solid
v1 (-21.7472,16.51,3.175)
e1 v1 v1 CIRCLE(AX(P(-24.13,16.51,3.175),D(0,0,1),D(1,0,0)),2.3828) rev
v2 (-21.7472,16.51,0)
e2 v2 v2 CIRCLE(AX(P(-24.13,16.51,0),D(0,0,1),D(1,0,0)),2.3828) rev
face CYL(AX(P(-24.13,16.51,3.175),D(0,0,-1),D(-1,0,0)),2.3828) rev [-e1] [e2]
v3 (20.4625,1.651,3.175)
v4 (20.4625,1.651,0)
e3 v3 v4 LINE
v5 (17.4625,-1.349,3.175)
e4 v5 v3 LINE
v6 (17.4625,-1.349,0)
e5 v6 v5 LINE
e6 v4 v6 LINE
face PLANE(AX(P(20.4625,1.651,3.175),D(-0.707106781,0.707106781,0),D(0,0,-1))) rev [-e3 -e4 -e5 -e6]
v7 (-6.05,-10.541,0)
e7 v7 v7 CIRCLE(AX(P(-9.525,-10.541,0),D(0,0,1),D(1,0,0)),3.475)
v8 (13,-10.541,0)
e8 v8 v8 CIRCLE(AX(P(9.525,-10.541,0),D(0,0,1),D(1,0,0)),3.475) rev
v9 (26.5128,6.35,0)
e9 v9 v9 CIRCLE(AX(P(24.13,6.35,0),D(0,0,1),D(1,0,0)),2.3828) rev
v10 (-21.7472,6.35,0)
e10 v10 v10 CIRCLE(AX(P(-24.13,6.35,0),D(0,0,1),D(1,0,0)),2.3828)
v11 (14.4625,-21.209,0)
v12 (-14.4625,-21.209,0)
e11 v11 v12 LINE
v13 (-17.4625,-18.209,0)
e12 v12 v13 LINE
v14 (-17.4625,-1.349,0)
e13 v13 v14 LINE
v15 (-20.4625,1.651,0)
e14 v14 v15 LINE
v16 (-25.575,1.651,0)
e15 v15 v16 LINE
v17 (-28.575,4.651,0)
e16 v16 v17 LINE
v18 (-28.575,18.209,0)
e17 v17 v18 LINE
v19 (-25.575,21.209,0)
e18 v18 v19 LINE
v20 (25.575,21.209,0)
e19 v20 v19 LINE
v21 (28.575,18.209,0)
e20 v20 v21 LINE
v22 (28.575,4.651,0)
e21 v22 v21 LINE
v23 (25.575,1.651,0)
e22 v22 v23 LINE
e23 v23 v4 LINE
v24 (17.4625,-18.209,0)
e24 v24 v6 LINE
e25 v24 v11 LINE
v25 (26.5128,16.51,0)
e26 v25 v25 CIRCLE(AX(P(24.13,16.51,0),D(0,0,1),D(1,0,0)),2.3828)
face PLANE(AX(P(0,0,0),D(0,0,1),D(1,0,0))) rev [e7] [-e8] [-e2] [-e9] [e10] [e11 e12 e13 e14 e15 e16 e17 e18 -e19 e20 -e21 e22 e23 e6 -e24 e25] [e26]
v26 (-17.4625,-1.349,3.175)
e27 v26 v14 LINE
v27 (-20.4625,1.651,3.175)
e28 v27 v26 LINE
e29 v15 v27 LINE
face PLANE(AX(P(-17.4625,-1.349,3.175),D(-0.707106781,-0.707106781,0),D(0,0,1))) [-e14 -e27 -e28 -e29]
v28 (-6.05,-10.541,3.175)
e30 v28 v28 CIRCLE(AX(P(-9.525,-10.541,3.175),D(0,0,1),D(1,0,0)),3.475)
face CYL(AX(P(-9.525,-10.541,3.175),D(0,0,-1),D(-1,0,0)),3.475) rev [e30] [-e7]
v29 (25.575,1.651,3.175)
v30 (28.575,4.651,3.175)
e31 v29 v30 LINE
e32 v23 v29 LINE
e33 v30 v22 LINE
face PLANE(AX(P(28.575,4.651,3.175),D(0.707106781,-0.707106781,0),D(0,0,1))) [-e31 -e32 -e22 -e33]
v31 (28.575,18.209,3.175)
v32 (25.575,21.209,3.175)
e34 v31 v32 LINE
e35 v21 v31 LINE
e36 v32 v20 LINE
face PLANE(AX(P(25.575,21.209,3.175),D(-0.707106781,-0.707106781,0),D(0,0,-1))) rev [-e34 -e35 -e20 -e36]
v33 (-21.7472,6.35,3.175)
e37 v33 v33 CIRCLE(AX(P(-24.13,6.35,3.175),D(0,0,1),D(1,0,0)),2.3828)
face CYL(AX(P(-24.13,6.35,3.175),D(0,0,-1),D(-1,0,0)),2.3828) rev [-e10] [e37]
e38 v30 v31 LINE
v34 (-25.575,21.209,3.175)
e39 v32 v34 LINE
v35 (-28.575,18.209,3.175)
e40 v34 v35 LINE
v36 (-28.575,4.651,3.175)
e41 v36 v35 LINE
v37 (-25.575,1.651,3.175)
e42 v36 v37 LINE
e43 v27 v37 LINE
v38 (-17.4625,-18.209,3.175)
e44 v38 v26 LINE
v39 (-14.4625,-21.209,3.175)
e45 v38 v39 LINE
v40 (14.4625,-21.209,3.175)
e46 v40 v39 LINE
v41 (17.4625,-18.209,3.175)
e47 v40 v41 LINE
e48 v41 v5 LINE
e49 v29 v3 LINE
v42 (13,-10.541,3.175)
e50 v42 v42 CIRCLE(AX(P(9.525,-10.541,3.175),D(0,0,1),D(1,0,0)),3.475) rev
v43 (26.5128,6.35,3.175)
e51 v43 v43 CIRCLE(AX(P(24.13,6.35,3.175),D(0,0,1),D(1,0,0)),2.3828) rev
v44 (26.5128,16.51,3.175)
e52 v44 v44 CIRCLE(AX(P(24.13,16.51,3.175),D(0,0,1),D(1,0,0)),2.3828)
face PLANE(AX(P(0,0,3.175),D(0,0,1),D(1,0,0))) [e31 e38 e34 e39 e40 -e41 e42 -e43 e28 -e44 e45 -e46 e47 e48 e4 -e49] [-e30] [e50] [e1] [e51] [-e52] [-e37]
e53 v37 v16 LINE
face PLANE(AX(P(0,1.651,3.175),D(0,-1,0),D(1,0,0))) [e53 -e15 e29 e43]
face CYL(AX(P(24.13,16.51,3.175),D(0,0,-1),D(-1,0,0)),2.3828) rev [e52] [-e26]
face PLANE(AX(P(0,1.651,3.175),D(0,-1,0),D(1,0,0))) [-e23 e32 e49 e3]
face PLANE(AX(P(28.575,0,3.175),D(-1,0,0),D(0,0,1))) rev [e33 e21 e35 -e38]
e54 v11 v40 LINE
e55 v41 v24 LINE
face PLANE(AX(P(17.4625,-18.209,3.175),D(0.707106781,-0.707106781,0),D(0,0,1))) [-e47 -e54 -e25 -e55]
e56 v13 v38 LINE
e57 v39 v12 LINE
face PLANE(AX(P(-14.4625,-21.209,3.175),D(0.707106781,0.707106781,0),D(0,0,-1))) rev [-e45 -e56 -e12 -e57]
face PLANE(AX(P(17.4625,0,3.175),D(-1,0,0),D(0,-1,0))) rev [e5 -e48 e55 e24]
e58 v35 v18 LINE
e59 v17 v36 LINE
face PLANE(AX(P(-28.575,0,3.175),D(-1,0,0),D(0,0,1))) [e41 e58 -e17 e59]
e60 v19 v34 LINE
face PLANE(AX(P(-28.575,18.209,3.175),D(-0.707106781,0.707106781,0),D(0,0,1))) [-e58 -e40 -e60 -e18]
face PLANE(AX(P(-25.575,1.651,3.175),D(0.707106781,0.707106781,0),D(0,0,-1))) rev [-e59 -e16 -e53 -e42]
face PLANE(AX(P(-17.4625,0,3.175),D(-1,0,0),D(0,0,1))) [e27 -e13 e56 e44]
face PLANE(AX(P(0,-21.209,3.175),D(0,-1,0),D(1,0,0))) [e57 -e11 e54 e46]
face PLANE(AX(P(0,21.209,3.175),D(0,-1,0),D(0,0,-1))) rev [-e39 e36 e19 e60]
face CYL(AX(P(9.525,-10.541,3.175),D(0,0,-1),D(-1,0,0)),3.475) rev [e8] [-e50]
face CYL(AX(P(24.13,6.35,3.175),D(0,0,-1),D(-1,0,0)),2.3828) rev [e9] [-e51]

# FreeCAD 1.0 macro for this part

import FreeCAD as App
import Part
import Sketcher
Q = App.Units.Quantity


def edges_at(feature, points):
    """Names of the edges that pass closest to the given points."""
    edges = feature.Shape.Edges
    near = lambda p: min(range(len(edges)), key=lambda i: edges[i].distToShape(Part.Vertex(*p))[0])
    return sorted({f"Edge{near(p) + 1}" for p in points})

doc = App.newDocument("Part")
params = doc.addObject("Spreadsheet::Sheet", "Params")
for row, (alias, value) in enumerate([
    ("sketch1_height", "0.9 in"),
    ("sketch1_width", "2.25 in"),
    ("sketch1_height2", "0.77 in"),
    ("sketch1_width2", "1.375 in"),
    ("pad1_length", "0.125 in"),
    ("chamfer_size", "3 mm"),
    ("chamfer2_size", "3 mm"),
], start=1):
    params.set(f"A{row}", alias)
    params.set(f"B{row}", "=" + value)
    params.setAlias(f"B{row}", alias)

body = doc.addObject("PartDesign::Body", "Body")

# Sketch on XY plane
sketch1 = body.newObject("Sketcher::SketchObject", "Sketch")
sketch1.AttachmentSupport = (doc.getObject("XY_Plane"), [""])
sketch1.MapMode = "FlatFace"
sketch1.addGeometry([
    Part.LineSegment(App.Vector(-17.5, -21.2, 0), App.Vector(17.5, -21.2, 0)),  # 0
    Part.LineSegment(App.Vector(17.5, -21.2, 0), App.Vector(17.5, 1.7, 0)),  # 1
    Part.LineSegment(App.Vector(17.5, 1.7, 0), App.Vector(28.6, 1.7, 0)),  # 2
    Part.LineSegment(App.Vector(28.6, 1.7, 0), App.Vector(28.6, 21.2, 0)),  # 3
    Part.LineSegment(App.Vector(28.6, 21.2, 0), App.Vector(-28.6, 21.2, 0)),  # 4
    Part.LineSegment(App.Vector(-28.6, 21.2, 0), App.Vector(-28.6, 1.7, 0)),  # 5
    Part.LineSegment(App.Vector(-28.6, 1.7, 0), App.Vector(-17.5, 1.7, 0)),  # 6
    Part.LineSegment(App.Vector(-17.5, 1.7, 0), App.Vector(-17.5, -21.2, 0)),  # 7
    Part.Circle(App.Vector(9.5, -10.5, 0), App.Vector(0, 0, 1), 3.5),  # 8
    Part.Circle(App.Vector(-9.5, -10.5, 0), App.Vector(0, 0, 1), 3.5),  # 9
    Part.Circle(App.Vector(24.1, 6.3, 0), App.Vector(0, 0, 1), 2.4),  # 10
    Part.Circle(App.Vector(24.1, 16.5, 0), App.Vector(0, 0, 1), 2.4),  # 11
    Part.Circle(App.Vector(-24.1, 6.3, 0), App.Vector(0, 0, 1), 2.4),  # 12
    Part.Circle(App.Vector(-24.1, 16.5, 0), App.Vector(0, 0, 1), 2.4),  # 13
], False)
sketch1.addConstraint([
    Sketcher.Constraint("Coincident", 0, 2, 1, 1),
    Sketcher.Constraint("Coincident", 1, 2, 2, 1),
    Sketcher.Constraint("Coincident", 2, 2, 3, 1),
    Sketcher.Constraint("Coincident", 3, 2, 4, 1),
    Sketcher.Constraint("Coincident", 4, 2, 5, 1),
    Sketcher.Constraint("Coincident", 5, 2, 6, 1),
    Sketcher.Constraint("Coincident", 6, 2, 7, 1),
    Sketcher.Constraint("Coincident", 7, 2, 0, 1),
    Sketcher.Constraint("Horizontal", 0),
    Sketcher.Constraint("Vertical", 1),
    Sketcher.Constraint("Horizontal", 2),
    Sketcher.Constraint("Vertical", 3),
    Sketcher.Constraint("Horizontal", 4),
    Sketcher.Constraint("Vertical", 5),
    Sketcher.Constraint("Horizontal", 6),
    Sketcher.Constraint("Vertical", 7),
    Sketcher.Constraint("Equal", 8, 9),
    Sketcher.Constraint("Equal", 10, 11),
    Sketcher.Constraint("Equal", 11, 12),
    Sketcher.Constraint("Equal", 12, 13),
    Sketcher.Constraint("Symmetric", 8, 3, 9, 3, -2),
    Sketcher.Constraint("Symmetric", 10, 3, 12, 3, -2),
    Sketcher.Constraint("Symmetric", 11, 3, 13, 3, -2),
    Sketcher.Constraint("Symmetric", 2, 2, 5, 2, -2),
    Sketcher.Constraint("Vertical", 10, 3, 11, 3),
    Sketcher.Constraint("Equal", 2, 6),
    Sketcher.Constraint("DistanceY", 1, 1, 1, 2, Q("0.9 in")),
    Sketcher.Constraint("DistanceX", 4, 2, 4, 1, Q("2.25 in")),
    Sketcher.Constraint("DistanceY", 3, 1, 3, 2, Q("0.77 in")),
    Sketcher.Constraint("DistanceY", 10, 3, 11, 3, Q("0.4 in")),
    Sketcher.Constraint("DistanceX", 12, 3, 10, 3, Q("1.9 in")),
    Sketcher.Constraint("DistanceX", 4, 2, 8, 3, Q("1.5 in")),
    Sketcher.Constraint("Diameter", 8, 6.95),
    Sketcher.Constraint("Diameter", 10, 4.7656),
    Sketcher.Constraint("DistanceX", 0, 1, 0, 2, Q("1.375 in")),
    Sketcher.Constraint("DistanceY", -1, 1, 10, 3, Q("0.25 in")),
    Sketcher.Constraint("DistanceY", 0, 2, 8, 3, Q("0.42 in")),
    Sketcher.Constraint("DistanceY", 8, 3, -1, 1, Q("0.415 in")),
])
sketch1.setExpression("Constraints[26]", "Params.sketch1_height")
sketch1.setExpression("Constraints[27]", "Params.sketch1_width")
sketch1.setExpression("Constraints[28]", "Params.sketch1_height2")
sketch1.setExpression("Constraints[34]", "Params.sketch1_width2")
pad1 = body.newObject("PartDesign::Pad", "Pad")
pad1.Profile = sketch1
pad1.setExpression("Length", "Params.pad1_length")
doc.recompute()

chamfer = body.newObject("PartDesign::Chamfer", "Chamfer")
chamfer.Base = (pad1, edges_at(pad1, [
    (-28.575, 1.651, 1.587),
    (-28.575, 21.209, 1.587),
    (28.575, 21.209, 1.587),
    (28.575, 1.651, 1.587),
]))
chamfer.setExpression("Size", "Params.chamfer_size")
doc.recompute()

chamfer2 = body.newObject("PartDesign::Chamfer", "Chamfer001")
chamfer2.Base = (chamfer, edges_at(chamfer, [
    (17.462, 1.651, 1.587),
    (17.462, -21.209, 1.587),
    (-17.462, -21.209, 1.587),
    (-17.462, 1.651, 1.587),
]))
chamfer2.setExpression("Size", "Params.chamfer2_size")

doc.recompute()
